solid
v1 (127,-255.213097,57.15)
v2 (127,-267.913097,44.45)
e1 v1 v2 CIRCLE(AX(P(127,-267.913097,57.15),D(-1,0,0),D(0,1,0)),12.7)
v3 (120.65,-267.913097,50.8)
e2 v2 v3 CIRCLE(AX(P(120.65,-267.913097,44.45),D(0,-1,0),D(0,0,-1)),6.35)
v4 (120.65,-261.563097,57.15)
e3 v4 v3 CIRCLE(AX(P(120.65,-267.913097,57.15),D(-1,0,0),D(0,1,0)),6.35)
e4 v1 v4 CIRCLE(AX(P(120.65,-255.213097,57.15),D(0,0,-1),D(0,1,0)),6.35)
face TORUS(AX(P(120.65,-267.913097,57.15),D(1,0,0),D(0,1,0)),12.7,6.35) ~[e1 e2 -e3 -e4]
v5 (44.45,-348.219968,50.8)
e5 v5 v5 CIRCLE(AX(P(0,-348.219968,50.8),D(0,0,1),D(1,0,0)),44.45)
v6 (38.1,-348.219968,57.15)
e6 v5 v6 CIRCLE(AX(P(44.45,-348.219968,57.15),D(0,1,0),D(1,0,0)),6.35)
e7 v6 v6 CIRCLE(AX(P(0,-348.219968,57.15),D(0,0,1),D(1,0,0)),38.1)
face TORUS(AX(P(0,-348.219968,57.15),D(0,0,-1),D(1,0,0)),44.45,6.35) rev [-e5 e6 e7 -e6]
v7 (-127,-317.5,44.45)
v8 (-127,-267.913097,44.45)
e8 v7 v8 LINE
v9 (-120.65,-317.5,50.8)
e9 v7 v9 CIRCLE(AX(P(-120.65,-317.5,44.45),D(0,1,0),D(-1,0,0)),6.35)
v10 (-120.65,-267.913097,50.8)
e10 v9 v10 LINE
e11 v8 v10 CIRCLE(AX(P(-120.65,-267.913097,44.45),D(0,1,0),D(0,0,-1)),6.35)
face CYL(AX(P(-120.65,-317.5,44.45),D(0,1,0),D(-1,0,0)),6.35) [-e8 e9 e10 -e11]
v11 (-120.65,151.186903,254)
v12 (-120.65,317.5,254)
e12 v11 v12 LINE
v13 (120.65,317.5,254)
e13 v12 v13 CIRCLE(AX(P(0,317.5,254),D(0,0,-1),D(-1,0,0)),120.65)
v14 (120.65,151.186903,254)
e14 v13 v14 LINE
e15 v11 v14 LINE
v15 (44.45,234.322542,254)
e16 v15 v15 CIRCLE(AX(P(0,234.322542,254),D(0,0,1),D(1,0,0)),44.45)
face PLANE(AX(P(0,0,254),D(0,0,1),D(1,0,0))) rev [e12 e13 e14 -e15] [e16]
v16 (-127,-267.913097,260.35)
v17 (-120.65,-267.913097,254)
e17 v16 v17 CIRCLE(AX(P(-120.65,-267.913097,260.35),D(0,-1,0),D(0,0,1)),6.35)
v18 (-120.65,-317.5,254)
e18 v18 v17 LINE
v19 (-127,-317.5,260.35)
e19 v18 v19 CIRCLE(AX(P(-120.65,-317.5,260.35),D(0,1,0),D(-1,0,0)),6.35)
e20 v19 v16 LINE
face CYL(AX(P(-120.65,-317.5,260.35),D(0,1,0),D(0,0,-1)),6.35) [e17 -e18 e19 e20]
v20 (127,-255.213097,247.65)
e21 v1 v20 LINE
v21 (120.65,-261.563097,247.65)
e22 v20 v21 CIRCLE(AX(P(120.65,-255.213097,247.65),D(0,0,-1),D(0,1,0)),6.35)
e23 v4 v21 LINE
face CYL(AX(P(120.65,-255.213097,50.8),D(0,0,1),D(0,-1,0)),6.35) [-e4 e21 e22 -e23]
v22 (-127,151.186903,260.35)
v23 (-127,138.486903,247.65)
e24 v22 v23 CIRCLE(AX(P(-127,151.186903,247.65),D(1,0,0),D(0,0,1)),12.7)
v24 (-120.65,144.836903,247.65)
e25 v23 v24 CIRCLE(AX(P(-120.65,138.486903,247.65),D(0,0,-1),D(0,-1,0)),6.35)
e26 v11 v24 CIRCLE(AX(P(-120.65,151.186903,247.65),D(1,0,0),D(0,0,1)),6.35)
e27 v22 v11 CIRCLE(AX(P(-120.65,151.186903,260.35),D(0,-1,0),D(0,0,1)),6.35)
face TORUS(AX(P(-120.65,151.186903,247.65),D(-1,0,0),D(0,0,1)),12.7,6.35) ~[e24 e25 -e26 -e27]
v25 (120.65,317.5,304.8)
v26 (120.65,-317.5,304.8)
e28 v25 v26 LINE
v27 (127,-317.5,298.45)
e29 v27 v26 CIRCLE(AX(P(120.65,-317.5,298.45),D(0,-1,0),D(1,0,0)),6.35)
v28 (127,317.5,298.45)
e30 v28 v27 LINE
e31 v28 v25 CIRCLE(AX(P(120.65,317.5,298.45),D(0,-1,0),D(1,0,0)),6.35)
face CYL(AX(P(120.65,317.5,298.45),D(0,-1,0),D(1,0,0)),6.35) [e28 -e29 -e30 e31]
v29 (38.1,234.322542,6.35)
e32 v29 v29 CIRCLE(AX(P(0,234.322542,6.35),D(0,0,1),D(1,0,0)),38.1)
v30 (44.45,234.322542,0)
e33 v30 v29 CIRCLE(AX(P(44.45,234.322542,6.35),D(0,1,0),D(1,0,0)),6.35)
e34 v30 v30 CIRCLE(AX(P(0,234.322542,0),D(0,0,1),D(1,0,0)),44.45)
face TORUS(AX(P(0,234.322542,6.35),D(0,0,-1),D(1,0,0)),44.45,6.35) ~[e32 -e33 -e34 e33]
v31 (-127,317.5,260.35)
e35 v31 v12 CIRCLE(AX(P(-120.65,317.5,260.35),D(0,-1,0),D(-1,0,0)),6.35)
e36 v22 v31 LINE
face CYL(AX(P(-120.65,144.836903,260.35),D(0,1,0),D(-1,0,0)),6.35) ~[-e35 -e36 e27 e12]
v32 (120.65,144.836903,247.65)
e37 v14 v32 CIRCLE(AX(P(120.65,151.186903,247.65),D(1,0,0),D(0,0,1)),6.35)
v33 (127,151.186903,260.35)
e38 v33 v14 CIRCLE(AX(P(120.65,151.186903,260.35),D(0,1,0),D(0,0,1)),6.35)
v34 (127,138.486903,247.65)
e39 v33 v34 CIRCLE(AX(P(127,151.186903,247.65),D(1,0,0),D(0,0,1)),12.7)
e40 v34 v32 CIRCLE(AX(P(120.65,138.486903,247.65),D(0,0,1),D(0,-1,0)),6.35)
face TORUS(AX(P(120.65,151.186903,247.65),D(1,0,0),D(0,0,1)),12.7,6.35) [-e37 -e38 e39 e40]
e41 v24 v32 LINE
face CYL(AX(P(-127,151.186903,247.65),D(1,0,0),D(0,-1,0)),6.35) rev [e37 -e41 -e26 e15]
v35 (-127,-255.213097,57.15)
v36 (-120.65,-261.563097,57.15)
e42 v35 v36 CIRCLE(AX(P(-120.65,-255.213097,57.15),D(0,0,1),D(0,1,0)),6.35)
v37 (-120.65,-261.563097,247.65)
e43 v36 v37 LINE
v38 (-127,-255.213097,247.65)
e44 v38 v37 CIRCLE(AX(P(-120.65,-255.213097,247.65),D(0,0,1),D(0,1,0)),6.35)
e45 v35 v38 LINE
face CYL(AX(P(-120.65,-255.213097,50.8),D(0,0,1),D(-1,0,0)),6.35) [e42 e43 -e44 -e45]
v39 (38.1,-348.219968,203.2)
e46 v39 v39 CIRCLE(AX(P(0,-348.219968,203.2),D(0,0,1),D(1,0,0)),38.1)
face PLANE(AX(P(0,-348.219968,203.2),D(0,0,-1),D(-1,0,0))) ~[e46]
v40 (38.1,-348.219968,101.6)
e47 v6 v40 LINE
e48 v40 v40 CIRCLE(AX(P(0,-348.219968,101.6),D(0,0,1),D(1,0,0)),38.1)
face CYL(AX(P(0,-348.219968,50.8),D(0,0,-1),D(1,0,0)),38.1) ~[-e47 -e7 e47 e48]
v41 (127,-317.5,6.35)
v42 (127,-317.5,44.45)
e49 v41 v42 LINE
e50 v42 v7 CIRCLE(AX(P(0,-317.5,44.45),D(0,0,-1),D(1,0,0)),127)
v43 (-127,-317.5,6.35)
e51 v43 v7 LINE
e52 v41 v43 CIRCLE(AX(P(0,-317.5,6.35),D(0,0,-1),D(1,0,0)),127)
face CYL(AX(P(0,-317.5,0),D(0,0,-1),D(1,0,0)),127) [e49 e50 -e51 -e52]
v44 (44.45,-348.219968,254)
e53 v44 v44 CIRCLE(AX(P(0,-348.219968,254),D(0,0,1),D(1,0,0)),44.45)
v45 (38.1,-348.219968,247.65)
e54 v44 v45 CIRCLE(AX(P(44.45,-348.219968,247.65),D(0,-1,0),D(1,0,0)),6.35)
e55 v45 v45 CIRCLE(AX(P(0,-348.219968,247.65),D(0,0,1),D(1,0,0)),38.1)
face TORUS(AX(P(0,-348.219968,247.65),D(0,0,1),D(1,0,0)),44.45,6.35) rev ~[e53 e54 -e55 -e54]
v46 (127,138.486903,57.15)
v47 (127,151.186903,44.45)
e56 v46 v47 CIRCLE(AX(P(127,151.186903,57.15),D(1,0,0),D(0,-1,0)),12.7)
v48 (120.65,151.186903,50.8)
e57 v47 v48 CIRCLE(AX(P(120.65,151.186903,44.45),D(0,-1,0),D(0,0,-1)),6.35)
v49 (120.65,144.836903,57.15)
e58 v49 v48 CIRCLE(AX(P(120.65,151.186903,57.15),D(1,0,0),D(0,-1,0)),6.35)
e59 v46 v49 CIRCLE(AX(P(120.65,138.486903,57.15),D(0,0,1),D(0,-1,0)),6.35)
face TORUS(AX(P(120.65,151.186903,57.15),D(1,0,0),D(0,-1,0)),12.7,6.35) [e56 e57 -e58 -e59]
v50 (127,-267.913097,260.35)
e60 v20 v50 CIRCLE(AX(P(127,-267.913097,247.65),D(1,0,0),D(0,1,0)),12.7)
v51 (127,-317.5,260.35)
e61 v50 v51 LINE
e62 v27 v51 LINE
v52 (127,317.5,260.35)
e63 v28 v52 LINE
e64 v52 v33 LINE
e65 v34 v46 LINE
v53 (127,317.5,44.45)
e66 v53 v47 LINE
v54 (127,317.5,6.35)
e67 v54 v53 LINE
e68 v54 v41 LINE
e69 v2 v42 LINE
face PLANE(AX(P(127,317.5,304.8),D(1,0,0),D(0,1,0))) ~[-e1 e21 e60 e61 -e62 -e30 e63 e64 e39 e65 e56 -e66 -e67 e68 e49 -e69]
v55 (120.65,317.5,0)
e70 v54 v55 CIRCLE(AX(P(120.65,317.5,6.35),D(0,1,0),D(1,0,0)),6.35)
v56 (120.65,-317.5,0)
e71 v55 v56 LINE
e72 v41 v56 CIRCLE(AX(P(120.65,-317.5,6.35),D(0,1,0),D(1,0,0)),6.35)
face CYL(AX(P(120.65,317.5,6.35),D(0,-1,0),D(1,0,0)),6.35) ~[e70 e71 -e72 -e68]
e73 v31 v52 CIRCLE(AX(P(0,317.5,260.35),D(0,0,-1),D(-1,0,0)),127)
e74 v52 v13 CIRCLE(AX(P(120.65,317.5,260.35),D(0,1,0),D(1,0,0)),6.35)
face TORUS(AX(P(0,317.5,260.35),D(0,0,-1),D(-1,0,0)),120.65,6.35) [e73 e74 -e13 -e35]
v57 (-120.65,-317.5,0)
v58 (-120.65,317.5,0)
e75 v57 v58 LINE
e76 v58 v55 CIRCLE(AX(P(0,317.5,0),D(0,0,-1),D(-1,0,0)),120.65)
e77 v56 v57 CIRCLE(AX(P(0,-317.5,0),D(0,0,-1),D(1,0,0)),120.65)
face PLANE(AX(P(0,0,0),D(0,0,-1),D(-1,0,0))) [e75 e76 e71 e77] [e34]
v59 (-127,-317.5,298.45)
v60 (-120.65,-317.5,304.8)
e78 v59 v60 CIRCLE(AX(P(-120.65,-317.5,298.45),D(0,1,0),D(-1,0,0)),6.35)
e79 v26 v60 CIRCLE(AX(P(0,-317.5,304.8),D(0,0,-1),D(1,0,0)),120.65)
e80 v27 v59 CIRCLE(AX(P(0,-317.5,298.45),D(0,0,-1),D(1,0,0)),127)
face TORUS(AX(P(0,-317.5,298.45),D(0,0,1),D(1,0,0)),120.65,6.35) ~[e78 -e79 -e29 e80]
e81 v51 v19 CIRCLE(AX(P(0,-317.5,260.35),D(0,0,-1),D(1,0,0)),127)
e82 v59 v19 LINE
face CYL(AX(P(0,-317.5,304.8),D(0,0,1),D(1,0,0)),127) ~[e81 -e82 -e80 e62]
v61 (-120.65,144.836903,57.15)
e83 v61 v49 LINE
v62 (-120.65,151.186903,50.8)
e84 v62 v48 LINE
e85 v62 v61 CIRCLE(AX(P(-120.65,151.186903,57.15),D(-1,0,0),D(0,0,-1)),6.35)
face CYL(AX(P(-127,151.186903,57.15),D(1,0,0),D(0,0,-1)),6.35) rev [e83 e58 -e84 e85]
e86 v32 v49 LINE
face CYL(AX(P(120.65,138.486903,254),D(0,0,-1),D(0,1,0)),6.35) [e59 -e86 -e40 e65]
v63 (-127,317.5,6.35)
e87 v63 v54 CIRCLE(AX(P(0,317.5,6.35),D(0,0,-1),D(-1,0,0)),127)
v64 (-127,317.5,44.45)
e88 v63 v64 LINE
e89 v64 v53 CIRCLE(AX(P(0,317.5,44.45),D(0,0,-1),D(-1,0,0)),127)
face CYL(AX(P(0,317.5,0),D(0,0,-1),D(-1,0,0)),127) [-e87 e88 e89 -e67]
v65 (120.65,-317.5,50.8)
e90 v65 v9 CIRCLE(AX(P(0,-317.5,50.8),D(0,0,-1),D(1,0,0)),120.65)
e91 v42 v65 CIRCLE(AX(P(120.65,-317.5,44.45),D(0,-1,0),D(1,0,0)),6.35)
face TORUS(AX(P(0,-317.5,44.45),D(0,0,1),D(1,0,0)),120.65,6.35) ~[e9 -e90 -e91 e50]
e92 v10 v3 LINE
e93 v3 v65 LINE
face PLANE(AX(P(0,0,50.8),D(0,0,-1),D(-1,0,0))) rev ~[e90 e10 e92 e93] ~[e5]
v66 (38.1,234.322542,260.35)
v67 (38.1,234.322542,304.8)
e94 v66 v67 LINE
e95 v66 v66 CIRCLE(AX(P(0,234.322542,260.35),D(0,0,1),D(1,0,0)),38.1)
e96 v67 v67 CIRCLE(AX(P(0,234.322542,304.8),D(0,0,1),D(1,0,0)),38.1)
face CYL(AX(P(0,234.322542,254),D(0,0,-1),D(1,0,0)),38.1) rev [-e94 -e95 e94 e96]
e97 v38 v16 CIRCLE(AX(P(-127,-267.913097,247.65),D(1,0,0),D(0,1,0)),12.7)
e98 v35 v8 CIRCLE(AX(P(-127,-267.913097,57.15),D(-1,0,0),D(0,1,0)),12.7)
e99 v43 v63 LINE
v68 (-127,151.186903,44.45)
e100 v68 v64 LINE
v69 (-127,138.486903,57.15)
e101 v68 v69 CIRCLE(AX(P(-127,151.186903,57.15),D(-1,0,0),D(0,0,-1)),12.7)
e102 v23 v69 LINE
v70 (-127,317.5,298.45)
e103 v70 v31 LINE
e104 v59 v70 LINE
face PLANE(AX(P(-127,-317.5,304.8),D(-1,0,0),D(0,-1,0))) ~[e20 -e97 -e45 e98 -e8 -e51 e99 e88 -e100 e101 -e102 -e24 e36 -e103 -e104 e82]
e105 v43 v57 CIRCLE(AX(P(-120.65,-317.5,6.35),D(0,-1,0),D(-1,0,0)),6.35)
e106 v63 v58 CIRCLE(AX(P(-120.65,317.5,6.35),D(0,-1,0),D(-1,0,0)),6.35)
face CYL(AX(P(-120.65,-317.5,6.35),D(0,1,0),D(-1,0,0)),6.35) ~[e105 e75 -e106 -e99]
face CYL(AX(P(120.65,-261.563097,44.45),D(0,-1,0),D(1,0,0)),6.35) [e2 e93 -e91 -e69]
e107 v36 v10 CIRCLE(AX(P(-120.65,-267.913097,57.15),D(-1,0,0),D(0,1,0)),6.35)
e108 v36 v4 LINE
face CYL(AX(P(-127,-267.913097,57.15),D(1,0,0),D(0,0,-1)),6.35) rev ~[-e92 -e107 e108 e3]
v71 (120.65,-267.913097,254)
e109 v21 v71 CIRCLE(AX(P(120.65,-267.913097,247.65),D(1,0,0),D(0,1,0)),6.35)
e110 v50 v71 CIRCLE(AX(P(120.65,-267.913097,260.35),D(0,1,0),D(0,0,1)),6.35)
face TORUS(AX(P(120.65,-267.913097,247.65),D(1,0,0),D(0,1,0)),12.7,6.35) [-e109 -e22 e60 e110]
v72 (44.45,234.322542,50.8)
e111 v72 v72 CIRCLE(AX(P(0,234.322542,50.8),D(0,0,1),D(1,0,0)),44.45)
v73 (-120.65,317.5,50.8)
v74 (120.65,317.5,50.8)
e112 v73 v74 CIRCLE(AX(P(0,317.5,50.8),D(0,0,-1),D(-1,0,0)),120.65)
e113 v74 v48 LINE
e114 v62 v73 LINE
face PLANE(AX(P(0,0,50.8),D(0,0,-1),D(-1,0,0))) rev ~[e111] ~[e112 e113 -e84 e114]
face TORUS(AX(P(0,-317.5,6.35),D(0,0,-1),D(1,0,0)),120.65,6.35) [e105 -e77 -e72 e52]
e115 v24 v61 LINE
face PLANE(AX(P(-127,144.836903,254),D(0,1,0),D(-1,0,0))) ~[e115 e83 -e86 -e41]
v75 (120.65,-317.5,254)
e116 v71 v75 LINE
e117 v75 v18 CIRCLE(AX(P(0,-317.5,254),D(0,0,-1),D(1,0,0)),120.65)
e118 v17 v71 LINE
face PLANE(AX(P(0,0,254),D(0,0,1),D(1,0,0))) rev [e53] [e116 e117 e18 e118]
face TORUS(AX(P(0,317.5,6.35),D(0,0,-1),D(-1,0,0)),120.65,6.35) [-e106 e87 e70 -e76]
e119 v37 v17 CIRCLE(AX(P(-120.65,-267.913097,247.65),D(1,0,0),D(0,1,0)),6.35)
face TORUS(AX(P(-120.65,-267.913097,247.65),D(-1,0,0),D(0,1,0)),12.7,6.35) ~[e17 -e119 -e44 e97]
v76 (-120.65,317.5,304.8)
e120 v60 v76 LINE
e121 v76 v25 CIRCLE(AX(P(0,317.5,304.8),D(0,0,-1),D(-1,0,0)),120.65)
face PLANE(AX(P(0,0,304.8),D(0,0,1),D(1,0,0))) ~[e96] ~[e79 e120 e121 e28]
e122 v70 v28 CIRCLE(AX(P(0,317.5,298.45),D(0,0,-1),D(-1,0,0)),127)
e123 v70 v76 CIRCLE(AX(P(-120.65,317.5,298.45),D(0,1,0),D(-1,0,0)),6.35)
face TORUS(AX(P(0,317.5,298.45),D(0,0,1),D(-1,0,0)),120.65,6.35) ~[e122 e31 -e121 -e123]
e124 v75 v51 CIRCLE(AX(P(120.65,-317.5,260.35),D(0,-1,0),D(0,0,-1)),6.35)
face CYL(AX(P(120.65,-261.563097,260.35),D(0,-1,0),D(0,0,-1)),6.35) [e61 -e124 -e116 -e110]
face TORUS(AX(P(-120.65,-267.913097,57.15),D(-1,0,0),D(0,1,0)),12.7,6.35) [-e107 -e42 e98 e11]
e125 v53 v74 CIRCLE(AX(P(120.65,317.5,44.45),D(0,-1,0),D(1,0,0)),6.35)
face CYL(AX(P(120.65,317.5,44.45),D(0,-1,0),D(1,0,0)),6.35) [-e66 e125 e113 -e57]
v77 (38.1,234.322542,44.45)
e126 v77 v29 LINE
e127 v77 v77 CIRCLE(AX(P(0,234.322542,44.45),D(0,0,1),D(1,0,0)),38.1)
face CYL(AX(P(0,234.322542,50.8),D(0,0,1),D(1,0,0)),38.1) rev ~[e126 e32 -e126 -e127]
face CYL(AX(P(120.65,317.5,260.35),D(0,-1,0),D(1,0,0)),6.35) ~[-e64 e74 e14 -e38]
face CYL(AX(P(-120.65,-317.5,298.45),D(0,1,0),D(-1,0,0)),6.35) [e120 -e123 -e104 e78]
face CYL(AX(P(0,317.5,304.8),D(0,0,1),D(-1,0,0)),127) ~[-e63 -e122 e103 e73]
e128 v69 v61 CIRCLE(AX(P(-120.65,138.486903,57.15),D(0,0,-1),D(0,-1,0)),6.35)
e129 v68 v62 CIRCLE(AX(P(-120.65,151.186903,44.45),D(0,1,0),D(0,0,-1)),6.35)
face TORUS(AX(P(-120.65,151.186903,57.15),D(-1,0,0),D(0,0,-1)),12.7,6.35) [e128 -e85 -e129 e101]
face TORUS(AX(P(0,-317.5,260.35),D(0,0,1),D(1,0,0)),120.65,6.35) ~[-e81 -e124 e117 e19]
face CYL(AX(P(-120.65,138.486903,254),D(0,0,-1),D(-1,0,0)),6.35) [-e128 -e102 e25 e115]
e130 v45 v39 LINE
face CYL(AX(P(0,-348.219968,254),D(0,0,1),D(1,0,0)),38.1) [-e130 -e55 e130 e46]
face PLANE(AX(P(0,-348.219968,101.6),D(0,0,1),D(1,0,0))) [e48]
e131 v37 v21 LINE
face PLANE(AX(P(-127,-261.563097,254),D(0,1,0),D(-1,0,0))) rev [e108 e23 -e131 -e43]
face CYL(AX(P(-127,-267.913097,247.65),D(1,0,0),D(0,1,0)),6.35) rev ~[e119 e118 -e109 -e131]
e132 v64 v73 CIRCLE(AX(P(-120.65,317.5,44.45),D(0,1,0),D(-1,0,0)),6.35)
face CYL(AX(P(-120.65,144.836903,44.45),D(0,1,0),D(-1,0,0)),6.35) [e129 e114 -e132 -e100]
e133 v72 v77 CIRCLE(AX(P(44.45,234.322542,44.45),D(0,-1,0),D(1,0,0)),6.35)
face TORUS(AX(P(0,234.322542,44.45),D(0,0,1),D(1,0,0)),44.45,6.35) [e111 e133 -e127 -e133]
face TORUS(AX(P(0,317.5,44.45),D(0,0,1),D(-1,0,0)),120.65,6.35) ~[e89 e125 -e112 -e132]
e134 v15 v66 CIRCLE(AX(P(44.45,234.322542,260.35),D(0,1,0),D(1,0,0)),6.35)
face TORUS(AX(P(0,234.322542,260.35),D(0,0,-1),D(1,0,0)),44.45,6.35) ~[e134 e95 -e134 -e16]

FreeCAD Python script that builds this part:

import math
import FreeCAD as App
import Part
import Sketcher

V = App.Vector
Q = App.Units.Quantity


def edges_at(feature, points):
    """Names of the edges that pass closest to the given points."""
    edges = feature.Shape.Edges
    near = lambda p: min(range(len(edges)), key=lambda i: edges[i].distToShape(Part.Vertex(*p))[0])
    return sorted({f"Edge{near(p) + 1}" for p in points})


def add_polygon(sketch, points):
    """Adds a closed chain of lines whose ends are joined by coincident constraints."""
    first, n = sketch.GeometryCount, len(points)
    for a, b in zip(points, points[1:] + points[:1]):
        sketch.addGeometry(Part.LineSegment(App.Vector(*a, 0), App.Vector(*b, 0)), False)
    for i in range(n):
        sketch.addConstraint(Sketcher.Constraint("Coincident", first + i, 2, first + (i + 1) % n, 1))

doc = App.newDocument("Part")
body = doc.addObject("PartDesign::Body", "Body")

sketch1 = body.newObject("Sketcher::SketchObject", "Sketch")
sketch1.AttachmentSupport = (doc.getObject("XY_Plane"), [""])
sketch1.MapMode = "FlatFace"
sketch1.addGeometry([
    Part.LineSegment(V(-127, 317.5, 0), V(-127, -317.5, 0)),
    Part.ArcOfCircle(Part.Circle(V(0, -317.5, 0), V(0, 0, 1), 127), math.radians(180), math.radians(360)),
    Part.LineSegment(V(127, -317.5, 0), V(127, 317.5, 0)),
    Part.ArcOfCircle(Part.Circle(V(0, 317.5, 0), V(0, 0, 1), 127), math.radians(0), math.radians(180)),
], False)
sketch1.addConstraint([
    Sketcher.Constraint("Tangent", 0, 2, 1, 1),
    Sketcher.Constraint("Tangent", 1, 2, 2, 1),
    Sketcher.Constraint("Tangent", 2, 2, 3, 1),
    Sketcher.Constraint("Tangent", 3, 2, 0, 1),
    Sketcher.Constraint("Vertical", 0),
    Sketcher.Constraint("Vertical", 2),
    Sketcher.Constraint("Symmetric", 1, 3, 3, 3, -1, 1),
    Sketcher.Constraint("Radius", 1, Q("5 in")),
    Sketcher.Constraint("DistanceY", 0, 2, 0, 1, Q("25 in")),
])
pad1 = body.newObject("PartDesign::Pad", "Pad")
pad1.Profile = sketch1
pad1.Length = Q("2 in")

sketch2 = body.newObject("Sketcher::SketchObject", "Sketch001")
sketch2.AttachmentSupport = (doc.getObject("XY_Plane"), [""])
sketch2.MapMode = "FlatFace"
sketch2.AttachmentOffset = App.Placement(V(0, 0, 2 * 25.4), App.Rotation())
sketch2.addGeometry(Part.Circle(V(0, 234.322542, 0), V(0, 0, 1), 38.1), False)
sketch2.addConstraint([
    Sketcher.Constraint("PointOnObject", 0, 3, -2),
    Sketcher.Constraint("Diameter", 0, Q("3 in")),
    Sketcher.Constraint("DistanceY", -1, 1, 0, 3, 234.322542),
])
pocket1 = body.newObject("PartDesign::Pocket", "Pocket")
pocket1.Profile = sketch2
pocket1.Length = Q("4 in")

sketch3 = body.newObject("Sketcher::SketchObject", "Sketch002")
sketch3.AttachmentSupport = (doc.getObject("XY_Plane"), [""])
sketch3.MapMode = "FlatFace"
sketch3.AttachmentOffset = App.Placement(V(0, 0, 2 * 25.4), App.Rotation())
add_polygon(sketch3, [(-127, 144.836903), (-127, -261.563097), (127, -261.563097), (127, 144.836903)])
sketch3.addConstraint([
    Sketcher.Constraint("Vertical", 0),
    Sketcher.Constraint("Horizontal", 1),
    Sketcher.Constraint("Vertical", 2),
    Sketcher.Constraint("Horizontal", 3),
    Sketcher.Constraint("DistanceX", 1, 1, 1, 2, Q("10 in")),
    Sketcher.Constraint("DistanceY", 0, 2, 0, 1, Q("16 in")),
    Sketcher.Constraint("DistanceX", 0, 2, -1, 1, Q("5 in")),
    Sketcher.Constraint("DistanceY", 0, 2, -1, 1, 261.563097),
])
pad2 = body.newObject("PartDesign::Pad", "Pad001")
pad2.Profile = sketch3
pad2.Length = Q("4 in")

sketch4 = body.newObject("Sketcher::SketchObject", "Sketch003")
sketch4.AttachmentSupport = (doc.getObject("XY_Plane"), [""])
sketch4.MapMode = "FlatFace"
sketch4.AttachmentOffset = App.Placement(V(0, 0, 2 * 25.4), App.Rotation())
sketch4.addGeometry(Part.Circle(V(0, -348.219968, 0), V(0, 0, 1), 38.1), False)
sketch4.addConstraint([
    Sketcher.Constraint("PointOnObject", 0, 3, -2),
    Sketcher.Constraint("Diameter", 0, Q("3 in")),
    Sketcher.Constraint("DistanceY", 0, 3, -1, 1, 348.219968),
])
pad3 = body.newObject("PartDesign::Pad", "Pad002")
pad3.Profile = sketch4
pad3.Length = Q("2 in")
body2 = doc.addObject("PartDesign::Body", "Body001")
doc.recompute()

body2.BaseFeature = body
doc.recompute()

mirroring = doc.addObject("Part::Mirroring", "Mirroring")
mirroring.Source = body
mirroring.Base = V(0, 0, 152.4)
mirroring.Normal = V(0, 0, -1)
body3 = doc.addObject("PartDesign::Body", "Body002")
body3.BaseFeature = mirroring
boolean = body2.newObject("PartDesign::Boolean", "Boolean")
boolean.Type = "Fuse"
boolean.addObjects([body3])
doc.recompute()

fillet = body2.newObject("PartDesign::Fillet", "Fillet")
fillet.Base = (boolean, edges_at(boolean, [
    (-127, 0, 304.8),
    (0, -444.5, 304.8),
    (127, 0, 304.8),
    (0, 444.5, 304.8),
]))
fillet.Radius = Q("0.25 in")
doc.recompute()

fillet2 = body2.newObject("PartDesign::Fillet", "Fillet001")
fillet2.Base = (fillet, edges_at(fillet, [
    (-38.1, 234.323, 0),
    (-127, 0, 0),
    (0, 444.5, 0),
    (127, 0, 0),
    (0, -444.5, 0),
]))
fillet2.Radius = Q("0.25 in")
doc.recompute()

fillet3 = body2.newObject("PartDesign::Fillet", "Fillet002")
fillet3.Base = (fillet2, edges_at(fillet2, [
    (0, 444.5, 50.8),
    (-38.1, 234.323, 50.8),
    (-127, -289.532, 50.8),
    (127, 231.168, 50.8),
    (-127, 231.168, 50.8),
    (-127, 144.837, 152.4),
    (0, -261.563, 50.8),
    (-127, -261.563, 152.4),
    (127, -261.563, 152.4),
    (0, 144.837, 50.8),
    (127, 144.837, 152.4),
    (-38.1, -348.22, 50.8),
    (0, 144.837, 254),
    (-127, 231.168, 254),
    (-38.1, 234.323, 254),
    (0, -444.5, 254),
    (127, -289.532, 254),
    (127, 231.168, 254),
    (0, 444.5, 254),
    (-38.1, -348.22, 254),
    (0, -261.563, 254),
    (-127, -289.532, 254),
    (0, -444.5, 50.8),
    (127, -289.532, 50.8),
]))
fillet3.Radius = Q("0.25 in")
mirroring.Visibility = False

doc.recompute()
